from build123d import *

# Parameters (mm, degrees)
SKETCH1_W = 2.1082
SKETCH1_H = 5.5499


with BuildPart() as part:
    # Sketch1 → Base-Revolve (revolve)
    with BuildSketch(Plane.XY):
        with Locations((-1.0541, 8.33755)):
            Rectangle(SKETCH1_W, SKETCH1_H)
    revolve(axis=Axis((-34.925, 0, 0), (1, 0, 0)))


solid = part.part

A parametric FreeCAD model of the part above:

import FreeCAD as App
import Part
import Sketcher
from FreeCAD import Vector
Q = App.Units.Quantity

doc = App.newDocument("Part")
params = doc.addObject("Spreadsheet::Sheet", "Params")
for row, (alias, value) in enumerate([
    ("sketch1_width", "0.083 in"),
    ("revolution_angle", "360 deg"),
], start=1):
    params.set(f"A{row}", alias)
    params.set(f"B{row}", "=" + value)
    params.setAlias(f"B{row}", alias)

body = doc.addObject("PartDesign::Body", "Body")

# Sketch on XY plane
sketch1 = body.newObject("Sketcher::SketchObject", "Sketch")
sketch1.AttachmentSupport = (doc.getObject("XY_Plane"), [""])
sketch1.MapMode = "FlatFace"
sketch1.addGeometry(Part.LineSegment(Vector(-2.1, 11.1, 0), Vector(-2.1, 5.6, 0)), False)
sketch1.addGeometry(Part.LineSegment(Vector(-2.1, 5.6, 0), Vector(0, 5.6, 0)), False)
sketch1.addGeometry(Part.LineSegment(Vector(0, 5.6, 0), Vector(0, 11.1, 0)), False)
sketch1.addGeometry(Part.LineSegment(Vector(0, 11.1, 0), Vector(-2.1, 11.1, 0)), False)
sketch1.addConstraint(Sketcher.Constraint("Coincident", 0, 2, 1, 1))
sketch1.addConstraint(Sketcher.Constraint("Coincident", 1, 2, 2, 1))
sketch1.addConstraint(Sketcher.Constraint("Coincident", 2, 2, 3, 1))
sketch1.addConstraint(Sketcher.Constraint("Coincident", 3, 2, 0, 1))
sketch1.addConstraint(Sketcher.Constraint("Vertical", 0))
sketch1.addConstraint(Sketcher.Constraint("Horizontal", 1))
sketch1.addConstraint(Sketcher.Constraint("Vertical", 2))
sketch1.addConstraint(Sketcher.Constraint("Horizontal", 3))
sketch1.addConstraint(Sketcher.Constraint("PointOnObject", 1, 2, -2))
sketch1.addConstraint(Sketcher.Constraint("DistanceX", 1, 1, 1, 2, Q("0.083 in")))
sketch1.addConstraint(Sketcher.Constraint("DistanceY", 0, 2, 0, 1, Q("0.2185 in")))
sketch1.addConstraint(Sketcher.Constraint("DistanceY", -1, 1, 0, 2, Q("0.219 in")))
sketch1.setExpression("Constraints[9]", "Params.sketch1_width")
revolution = body.newObject("PartDesign::Revolution", "Revolution")
revolution.Profile = sketch1
revolution.ReferenceAxis = (sketch1, ["H_Axis"])
revolution.setExpression("Angle", "Params.revolution_angle")

doc.recompute()
